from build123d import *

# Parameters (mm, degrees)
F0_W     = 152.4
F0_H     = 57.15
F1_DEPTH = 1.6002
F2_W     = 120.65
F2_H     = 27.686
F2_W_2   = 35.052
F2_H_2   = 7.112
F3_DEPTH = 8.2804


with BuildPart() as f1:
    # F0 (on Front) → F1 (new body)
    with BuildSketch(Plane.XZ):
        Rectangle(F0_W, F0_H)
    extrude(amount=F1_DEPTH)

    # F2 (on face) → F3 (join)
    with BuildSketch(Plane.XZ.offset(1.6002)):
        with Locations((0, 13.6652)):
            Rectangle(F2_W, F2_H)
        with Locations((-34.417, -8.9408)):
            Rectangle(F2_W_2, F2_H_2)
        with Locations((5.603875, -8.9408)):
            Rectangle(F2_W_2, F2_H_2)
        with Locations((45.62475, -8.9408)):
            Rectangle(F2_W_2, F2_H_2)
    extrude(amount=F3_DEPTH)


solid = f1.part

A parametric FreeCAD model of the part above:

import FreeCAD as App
import Part
import Sketcher
Q = App.Units.Quantity

doc = App.newDocument("Part")
body = doc.addObject("PartDesign::Body", "Body")

# Sketch on XZ plane
sketch1 = body.newObject("Sketcher::SketchObject", "Sketch")
sketch1.AttachmentSupport = (doc.getObject("XZ_Plane"), [""])
sketch1.MapMode = "FlatFace"
sketch1.addGeometry([
    Part.LineSegment(App.Vector(-76, 29, 0), App.Vector(-76, -29, 0)),
    Part.LineSegment(App.Vector(-76, -29, 0), App.Vector(76, -29, 0)),
    Part.LineSegment(App.Vector(76, -29, 0), App.Vector(76, 29, 0)),
    Part.LineSegment(App.Vector(76, 29, 0), App.Vector(-76, 29, 0)),
], False)
sketch1.addConstraint([
    Sketcher.Constraint("Coincident", 0, 2, 1, 1),
    Sketcher.Constraint("Coincident", 1, 2, 2, 1),
    Sketcher.Constraint("Coincident", 2, 2, 3, 1),
    Sketcher.Constraint("Coincident", 3, 2, 0, 1),
    Sketcher.Constraint("Vertical", 0),
    Sketcher.Constraint("Horizontal", 1),
    Sketcher.Constraint("Vertical", 2),
    Sketcher.Constraint("Horizontal", 3),
    Sketcher.Constraint("Symmetric", 0, 2, 2, 2, -1, 1),
    Sketcher.Constraint("DistanceX", 1, 1, 1, 2, Q("6 in")),
    Sketcher.Constraint("DistanceY", 0, 2, 0, 1, Q("2.25 in")),
])
pad1 = body.newObject("PartDesign::Pad", "Pad")
pad1.Profile = sketch1
pad1.Length = Q("0.063 in")

# Sketch on XZ plane
sketch2 = body.newObject("Sketcher::SketchObject", "Sketch001")
sketch2.AttachmentSupport = (doc.getObject("XZ_Plane"), [""])
sketch2.MapMode = "FlatFace"
sketch2.AttachmentOffset = App.Placement(App.Vector(0, 0, 0.063 * 25.4), App.Rotation())
sketch2.addGeometry([
    Part.LineSegment(App.Vector(-60, 28, 0), App.Vector(-60, 0, 0)),  # 0
    Part.LineSegment(App.Vector(-60, 0, 0), App.Vector(60, 0, 0)),  # 1
    Part.LineSegment(App.Vector(60, 0, 0), App.Vector(60, 28, 0)),  # 2
    Part.LineSegment(App.Vector(60, 28, 0), App.Vector(-60, 28, 0)),  # 3
    Part.LineSegment(App.Vector(-52, -5, 0), App.Vector(-52, -12, 0)),  # 4
    Part.LineSegment(App.Vector(-52, -12, 0), App.Vector(-17, -12, 0)),  # 5
    Part.LineSegment(App.Vector(-17, -12, 0), App.Vector(-17, -5, 0)),  # 6
    Part.LineSegment(App.Vector(-17, -5, 0), App.Vector(-52, -5, 0)),  # 7
    Part.LineSegment(App.Vector(-12, -5, 0), App.Vector(-12, -12, 0)),  # 8
    Part.LineSegment(App.Vector(-12, -12, 0), App.Vector(23, -12, 0)),  # 9
    Part.LineSegment(App.Vector(23, -12, 0), App.Vector(23, -5, 0)),  # 10
    Part.LineSegment(App.Vector(23, -5, 0), App.Vector(-12, -5, 0)),  # 11
    Part.LineSegment(App.Vector(28, -5, 0), App.Vector(28, -12, 0)),  # 12
    Part.LineSegment(App.Vector(28, -12, 0), App.Vector(63, -12, 0)),  # 13
    Part.LineSegment(App.Vector(63, -12, 0), App.Vector(63, -5, 0)),  # 14
    Part.LineSegment(App.Vector(63, -5, 0), App.Vector(28, -5, 0)),  # 15
], False)
sketch2.addConstraint([
    Sketcher.Constraint("Coincident", 0, 2, 1, 1),
    Sketcher.Constraint("Coincident", 1, 2, 2, 1),
    Sketcher.Constraint("Coincident", 2, 2, 3, 1),
    Sketcher.Constraint("Coincident", 3, 2, 0, 1),
    Sketcher.Constraint("Coincident", 4, 2, 5, 1),
    Sketcher.Constraint("Coincident", 5, 2, 6, 1),
    Sketcher.Constraint("Coincident", 6, 2, 7, 1),
    Sketcher.Constraint("Coincident", 7, 2, 4, 1),
    Sketcher.Constraint("Coincident", 8, 2, 9, 1),
    Sketcher.Constraint("Coincident", 9, 2, 10, 1),
    Sketcher.Constraint("Coincident", 10, 2, 11, 1),
    Sketcher.Constraint("Coincident", 11, 2, 8, 1),
    Sketcher.Constraint("Coincident", 12, 2, 13, 1),
    Sketcher.Constraint("Coincident", 13, 2, 14, 1),
    Sketcher.Constraint("Coincident", 14, 2, 15, 1),
    Sketcher.Constraint("Coincident", 15, 2, 12, 1),
    Sketcher.Constraint("Vertical", 0),
    Sketcher.Constraint("Horizontal", 1),
    Sketcher.Constraint("Vertical", 2),
    Sketcher.Constraint("Horizontal", 3),
    Sketcher.Constraint("Vertical", 4),
    Sketcher.Constraint("Horizontal", 5),
    Sketcher.Constraint("Vertical", 6),
    Sketcher.Constraint("Horizontal", 7),
    Sketcher.Constraint("Vertical", 8),
    Sketcher.Constraint("Horizontal", 9),
    Sketcher.Constraint("Vertical", 10),
    Sketcher.Constraint("Horizontal", 11),
    Sketcher.Constraint("Vertical", 12),
    Sketcher.Constraint("Horizontal", 13),
    Sketcher.Constraint("Vertical", 14),
    Sketcher.Constraint("Horizontal", 15),
    Sketcher.Constraint("Horizontal", 5, 2, 8, 2),
    Sketcher.Constraint("Horizontal", 7, 2, 10, 2),
    Sketcher.Constraint("Horizontal", 9, 2, 12, 2),
    Sketcher.Constraint("Horizontal", 11, 2, 14, 2),
    Sketcher.Constraint("Equal", 7, 9),
    Sketcher.Constraint("Equal", 11, 13),
    Sketcher.Constraint("DistanceX", 1, 1, 1, 2, Q("4.75 in")),
    Sketcher.Constraint("DistanceX", 5, 1, 5, 2, Q("1.38 in")),
    Sketcher.Constraint("DistanceY", 0, 2, 0, 1, Q("1.09 in")),
    Sketcher.Constraint("DistanceY", 4, 2, 4, 1, Q("0.28 in")),
    Sketcher.Constraint("DistanceX", 0, 2, 4, 2, Q("0.33 in")),
    Sketcher.Constraint("DistanceX", 0, 2, -1, 1, Q("2.375 in")),
    Sketcher.Constraint("DistanceY", 0, 2, -1, 1, Q("0.007 in")),
    Sketcher.Constraint("DistanceY", 4, 2, -1, 1, Q("0.492 in")),
    Sketcher.Constraint("DistanceX", -1, 1, 12, 2, Q("28.09875 mm")),
    Sketcher.Constraint("DistanceX", 8, 2, -1, 1, Q("11.922125 mm")),
])
pad2 = body.newObject("PartDesign::Pad", "Pad001")
pad2.Profile = sketch2
pad2.Length = Q("0.326 in")

doc.recompute()
